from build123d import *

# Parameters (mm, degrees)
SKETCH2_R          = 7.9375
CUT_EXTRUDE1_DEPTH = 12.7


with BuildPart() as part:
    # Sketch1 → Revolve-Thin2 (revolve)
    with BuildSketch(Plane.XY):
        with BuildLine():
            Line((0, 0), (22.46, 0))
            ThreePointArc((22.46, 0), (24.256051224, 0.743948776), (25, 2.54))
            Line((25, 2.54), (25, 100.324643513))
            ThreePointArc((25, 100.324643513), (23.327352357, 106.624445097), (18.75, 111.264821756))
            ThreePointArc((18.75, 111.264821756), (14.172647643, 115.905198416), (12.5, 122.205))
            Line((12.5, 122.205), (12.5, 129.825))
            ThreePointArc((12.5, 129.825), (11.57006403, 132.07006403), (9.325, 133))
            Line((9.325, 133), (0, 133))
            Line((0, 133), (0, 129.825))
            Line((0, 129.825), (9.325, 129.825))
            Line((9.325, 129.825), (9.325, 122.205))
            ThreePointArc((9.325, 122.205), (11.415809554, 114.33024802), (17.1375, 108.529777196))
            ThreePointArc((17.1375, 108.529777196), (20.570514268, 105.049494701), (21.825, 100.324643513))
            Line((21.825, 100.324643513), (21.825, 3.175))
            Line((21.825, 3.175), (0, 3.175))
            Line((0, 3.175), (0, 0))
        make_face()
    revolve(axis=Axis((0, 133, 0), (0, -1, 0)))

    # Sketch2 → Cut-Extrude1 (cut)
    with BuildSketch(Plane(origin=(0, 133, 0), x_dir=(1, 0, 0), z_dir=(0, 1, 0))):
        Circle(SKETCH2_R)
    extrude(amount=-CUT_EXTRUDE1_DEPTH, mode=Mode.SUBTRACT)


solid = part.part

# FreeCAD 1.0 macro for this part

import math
import FreeCAD as App
import Part
import Sketcher
Q = App.Units.Quantity

doc = App.newDocument("Part")
body = doc.addObject("PartDesign::Body", "Body")

sketch1 = body.newObject("Sketcher::SketchObject", "Sketch")
sketch1.AttachmentSupport = (doc.getObject("XY_Plane"), [""])
sketch1.MapMode = "FlatFace"
sketch1.addGeometry([
    Part.LineSegment(App.Vector(0, 0, 0), App.Vector(22.5, 0, 0)),
    Part.ArcOfCircle(Part.Circle(App.Vector(22.5, 2.5, 0), App.Vector(0, 0, 1), 2.5), math.radians(-90), math.radians(0)),
    Part.LineSegment(App.Vector(25, 2.5, 0), App.Vector(25, 100.3, 0)),
    Part.ArcOfCircle(Part.Circle(App.Vector(12.3, 100.3, 0), App.Vector(0, 0, 1), 12.7), math.radians(0), math.radians(59)),
    Part.ArcOfCircle(Part.Circle(App.Vector(25.2, 122.2, 0), App.Vector(0, 0, 1), 12.7), math.radians(180), math.radians(239)),
    Part.LineSegment(App.Vector(12.5, 122.2, 0), App.Vector(12.5, 129.8, 0)),
    Part.ArcOfCircle(Part.Circle(App.Vector(9.3, 129.8, 0), App.Vector(0, 0, 1), 3.2), math.radians(0), math.radians(90)),
    Part.LineSegment(App.Vector(9.3, 133, 0), App.Vector(0, 133, 0)),
    Part.LineSegment(App.Vector(0, 133, 0), App.Vector(0, 129.8, 0)),
    Part.LineSegment(App.Vector(0, 129.8, 0), App.Vector(9.3, 129.8, 0)),
    Part.LineSegment(App.Vector(9.3, 129.8, 0), App.Vector(9.3, 122.2, 0)),
    Part.ArcOfCircle(Part.Circle(App.Vector(25.2, 122.2, 0), App.Vector(0, 0, 1), 15.9), math.radians(180), math.radians(239)),
    Part.ArcOfCircle(Part.Circle(App.Vector(12.3, 100.3, 0), App.Vector(0, 0, 1), 9.5), math.radians(0), math.radians(59)),
    Part.LineSegment(App.Vector(21.8, 100.3, 0), App.Vector(21.8, 3.2, 0)),
    Part.LineSegment(App.Vector(21.8, 3.2, 0), App.Vector(0, 3.2, 0)),
    Part.LineSegment(App.Vector(0, 3.2, 0), App.Vector(0, 0, 0)),
], False)
sketch1.addConstraint([
    Sketcher.Constraint("Tangent", 0, 2, 1, 1),
    Sketcher.Constraint("Tangent", 1, 2, 2, 1),
    Sketcher.Constraint("Tangent", 2, 2, 3, 1),
    Sketcher.Constraint("Tangent", 3, 2, 4, 2),
    Sketcher.Constraint("Tangent", 4, 1, 5, 1),
    Sketcher.Constraint("Tangent", 5, 2, 6, 1),
    Sketcher.Constraint("Tangent", 6, 2, 7, 1),
    Sketcher.Constraint("Coincident", 7, 2, 8, 1),
    Sketcher.Constraint("Coincident", 8, 2, 9, 1),
    Sketcher.Constraint("Coincident", 9, 2, 10, 1),
    Sketcher.Constraint("Tangent", 10, 2, 11, 1),
    Sketcher.Constraint("Tangent", 11, 2, 12, 2),
    Sketcher.Constraint("Tangent", 12, 1, 13, 1),
    Sketcher.Constraint("Coincident", 13, 2, 14, 1),
    Sketcher.Constraint("Coincident", 14, 2, 15, 1),
    Sketcher.Constraint("Coincident", 15, 2, 0, 1),
    Sketcher.Constraint("Horizontal", 0),
    Sketcher.Constraint("Vertical", 2),
    Sketcher.Constraint("Vertical", 5),
    Sketcher.Constraint("Horizontal", 7),
    Sketcher.Constraint("Vertical", 8),
    Sketcher.Constraint("Horizontal", 9),
    Sketcher.Constraint("Vertical", 10),
    Sketcher.Constraint("Vertical", 13),
    Sketcher.Constraint("Horizontal", 14),
    Sketcher.Constraint("Vertical", 15),
    Sketcher.Constraint("Coincident", 15, 2, -1, 1),
    Sketcher.Constraint("Coincident", 11, 3, 4, 3),
    Sketcher.Constraint("Coincident", 12, 3, 3, 3),
    Sketcher.Constraint("Coincident", 9, 2, 6, 3),
    Sketcher.Constraint("Equal", 3, 4),
    Sketcher.Constraint("PointOnObject", 7, 2, -2),
    Sketcher.Constraint("Equal", 8, 15),
    Sketcher.Constraint("Radius", 1, Q("0.1 in")),
    Sketcher.Constraint("Radius", 3, Q("0.5 in")),
    Sketcher.Constraint("DistanceY", 5, 1, 5, 2, Q("0.3 in")),
    Sketcher.Constraint("Radius", 6, Q("0.125 in")),
    Sketcher.Constraint("DistanceX", 0, 1, 0, 2, Q("22.46 mm")),
    Sketcher.Constraint("DistanceX", 7, 2, 7, 1, Q("9.325 mm")),
    Sketcher.Constraint("DistanceY", -1, 1, 4, 3, Q("122.205 mm")),
])
revolution = body.newObject("PartDesign::Revolution", "Revolution")
revolution.Profile = sketch1
revolution.ReferenceAxis = (sketch1, ["V_Axis"])
revolution.Angle = 360

sketch2 = body.newObject("Sketcher::SketchObject", "Sketch001")
sketch2.AttachmentSupport = (doc.getObject("XZ_Plane"), [""])
sketch2.MapMode = "FlatFace"
sketch2.AttachmentOffset = App.Placement(App.Vector(0, 0, -133), App.Rotation())
sketch2.addGeometry(Part.Circle(App.Vector(0, 0, 0), App.Vector(0, 0, 1), 8), False)
sketch2.addConstraint([
    Sketcher.Constraint("Coincident", 0, 3, -1, 1),
    Sketcher.Constraint("Diameter", 0, Q("0.625 in")),
])
pocket1 = body.newObject("PartDesign::Pocket", "Pocket")
pocket1.Profile = sketch2
pocket1.Length = Q("0.5 in")
pocket1.Reversed = True

doc.recompute()
